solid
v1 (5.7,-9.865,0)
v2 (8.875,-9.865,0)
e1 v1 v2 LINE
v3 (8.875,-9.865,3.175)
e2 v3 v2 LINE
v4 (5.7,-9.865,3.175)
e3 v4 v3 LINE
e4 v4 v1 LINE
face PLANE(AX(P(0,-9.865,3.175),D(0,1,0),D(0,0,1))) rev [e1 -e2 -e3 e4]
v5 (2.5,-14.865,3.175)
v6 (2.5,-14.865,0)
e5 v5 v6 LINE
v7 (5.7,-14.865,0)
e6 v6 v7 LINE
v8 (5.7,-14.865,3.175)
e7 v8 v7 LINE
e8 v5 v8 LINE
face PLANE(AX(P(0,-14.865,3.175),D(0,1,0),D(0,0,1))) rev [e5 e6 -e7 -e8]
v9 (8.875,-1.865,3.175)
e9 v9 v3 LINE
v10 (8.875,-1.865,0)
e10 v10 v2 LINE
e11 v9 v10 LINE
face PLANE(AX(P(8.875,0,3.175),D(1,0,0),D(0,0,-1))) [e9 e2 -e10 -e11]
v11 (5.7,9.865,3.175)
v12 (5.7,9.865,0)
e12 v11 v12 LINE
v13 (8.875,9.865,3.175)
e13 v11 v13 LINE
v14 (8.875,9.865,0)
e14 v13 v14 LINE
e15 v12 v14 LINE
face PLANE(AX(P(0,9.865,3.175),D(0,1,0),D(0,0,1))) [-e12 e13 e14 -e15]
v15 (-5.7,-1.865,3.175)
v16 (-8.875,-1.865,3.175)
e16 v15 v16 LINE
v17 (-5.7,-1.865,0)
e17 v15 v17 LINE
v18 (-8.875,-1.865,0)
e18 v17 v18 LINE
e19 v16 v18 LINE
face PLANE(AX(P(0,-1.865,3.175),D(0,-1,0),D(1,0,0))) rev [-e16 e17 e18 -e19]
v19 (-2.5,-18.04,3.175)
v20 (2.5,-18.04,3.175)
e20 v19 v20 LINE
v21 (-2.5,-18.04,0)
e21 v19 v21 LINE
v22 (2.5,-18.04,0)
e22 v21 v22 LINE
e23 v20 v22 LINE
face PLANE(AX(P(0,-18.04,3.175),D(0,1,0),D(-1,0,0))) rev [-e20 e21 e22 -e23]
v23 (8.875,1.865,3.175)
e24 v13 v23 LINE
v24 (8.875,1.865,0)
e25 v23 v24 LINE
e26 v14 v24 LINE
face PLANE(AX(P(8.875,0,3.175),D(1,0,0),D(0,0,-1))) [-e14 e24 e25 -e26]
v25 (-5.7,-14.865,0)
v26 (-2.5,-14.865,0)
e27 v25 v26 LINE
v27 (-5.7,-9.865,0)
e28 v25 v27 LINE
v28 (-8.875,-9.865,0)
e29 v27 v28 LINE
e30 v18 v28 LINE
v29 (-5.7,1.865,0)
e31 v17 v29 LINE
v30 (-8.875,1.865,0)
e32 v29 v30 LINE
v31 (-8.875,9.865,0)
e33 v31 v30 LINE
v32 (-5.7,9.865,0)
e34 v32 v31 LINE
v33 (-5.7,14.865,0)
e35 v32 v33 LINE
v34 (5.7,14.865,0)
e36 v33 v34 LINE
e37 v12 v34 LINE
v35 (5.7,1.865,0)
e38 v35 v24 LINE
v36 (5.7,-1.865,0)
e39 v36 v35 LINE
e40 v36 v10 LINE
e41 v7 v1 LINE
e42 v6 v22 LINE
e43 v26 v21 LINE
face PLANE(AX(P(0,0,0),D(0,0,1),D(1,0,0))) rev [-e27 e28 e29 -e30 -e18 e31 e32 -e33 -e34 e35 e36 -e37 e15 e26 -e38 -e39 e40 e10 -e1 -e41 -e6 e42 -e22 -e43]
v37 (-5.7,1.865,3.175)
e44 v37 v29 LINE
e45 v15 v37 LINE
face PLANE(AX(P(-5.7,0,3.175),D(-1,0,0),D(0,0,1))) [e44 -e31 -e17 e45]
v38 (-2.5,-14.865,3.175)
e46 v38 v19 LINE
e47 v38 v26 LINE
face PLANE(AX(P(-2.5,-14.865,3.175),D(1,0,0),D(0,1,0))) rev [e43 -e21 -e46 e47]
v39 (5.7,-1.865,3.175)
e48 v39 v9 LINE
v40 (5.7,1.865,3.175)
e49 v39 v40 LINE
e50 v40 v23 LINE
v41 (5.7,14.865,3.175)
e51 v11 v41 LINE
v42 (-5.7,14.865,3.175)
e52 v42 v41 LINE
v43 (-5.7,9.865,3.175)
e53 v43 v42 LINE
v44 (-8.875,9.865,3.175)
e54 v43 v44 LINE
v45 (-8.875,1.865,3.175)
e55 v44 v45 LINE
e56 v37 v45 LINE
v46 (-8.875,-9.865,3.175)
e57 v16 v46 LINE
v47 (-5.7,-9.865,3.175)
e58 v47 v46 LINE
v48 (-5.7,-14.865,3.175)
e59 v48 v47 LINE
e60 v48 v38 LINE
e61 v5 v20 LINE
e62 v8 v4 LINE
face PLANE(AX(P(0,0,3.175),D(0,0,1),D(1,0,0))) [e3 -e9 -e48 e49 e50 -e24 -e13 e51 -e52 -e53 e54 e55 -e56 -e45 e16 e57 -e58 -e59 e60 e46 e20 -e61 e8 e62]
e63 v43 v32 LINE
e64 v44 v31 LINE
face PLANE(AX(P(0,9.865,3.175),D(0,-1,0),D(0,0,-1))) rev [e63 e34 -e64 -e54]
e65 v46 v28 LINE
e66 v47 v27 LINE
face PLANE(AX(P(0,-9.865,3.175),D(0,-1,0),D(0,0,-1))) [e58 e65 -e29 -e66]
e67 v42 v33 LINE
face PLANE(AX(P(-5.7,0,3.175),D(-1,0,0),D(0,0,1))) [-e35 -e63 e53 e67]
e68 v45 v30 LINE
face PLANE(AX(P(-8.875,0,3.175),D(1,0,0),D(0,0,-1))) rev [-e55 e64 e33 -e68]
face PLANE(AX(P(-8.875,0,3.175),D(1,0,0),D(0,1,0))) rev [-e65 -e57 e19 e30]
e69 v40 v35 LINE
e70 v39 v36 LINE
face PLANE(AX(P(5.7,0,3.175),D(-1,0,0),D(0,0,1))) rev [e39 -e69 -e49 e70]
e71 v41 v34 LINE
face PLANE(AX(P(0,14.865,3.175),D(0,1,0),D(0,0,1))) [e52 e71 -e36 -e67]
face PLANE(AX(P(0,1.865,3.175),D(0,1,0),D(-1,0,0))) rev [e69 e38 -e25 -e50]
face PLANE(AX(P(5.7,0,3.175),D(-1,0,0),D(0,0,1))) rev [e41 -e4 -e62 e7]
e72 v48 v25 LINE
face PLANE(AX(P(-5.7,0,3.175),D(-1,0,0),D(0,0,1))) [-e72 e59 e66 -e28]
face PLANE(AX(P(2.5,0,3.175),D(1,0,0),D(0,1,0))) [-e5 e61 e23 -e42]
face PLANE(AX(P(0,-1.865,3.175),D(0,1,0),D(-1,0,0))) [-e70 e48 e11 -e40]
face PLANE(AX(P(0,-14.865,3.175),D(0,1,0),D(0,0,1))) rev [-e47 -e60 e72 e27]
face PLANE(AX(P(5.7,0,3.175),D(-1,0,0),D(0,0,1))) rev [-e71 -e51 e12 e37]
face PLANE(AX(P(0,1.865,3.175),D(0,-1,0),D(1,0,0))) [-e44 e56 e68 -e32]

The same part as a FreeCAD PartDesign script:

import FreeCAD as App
import Part
import Sketcher

V = App.Vector
Q = App.Units.Quantity


def add_polygon(sketch, points):
    """Adds a closed chain of lines whose ends are joined by coincident constraints."""
    first, n = sketch.GeometryCount, len(points)
    for a, b in zip(points, points[1:] + points[:1]):
        sketch.addGeometry(Part.LineSegment(App.Vector(*a, 0), App.Vector(*b, 0)), False)
    for i in range(n):
        sketch.addConstraint(Sketcher.Constraint("Coincident", first + i, 2, first + (i + 1) % n, 1))

doc = App.newDocument("Part")
body = doc.addObject("PartDesign::Body", "Body")

sketch1 = body.newObject("Sketcher::SketchObject", "Sketch")
sketch1.AttachmentSupport = (doc.getObject("XY_Plane"), [""])
sketch1.MapMode = "FlatFace"
add_polygon(sketch1, [(-5.7, -14.9), (-2.5, -14.9), (-2.5, -18), (2.5, -18), (2.5, -14.9), (5.7, -14.9), (5.7, -9.9), (8.9, -9.9), (8.9, -1.9), (5.7, -1.9), (5.7, 1.9), (8.9, 1.9), (8.9, 9.9), (5.7, 9.9), (5.7, 14.9), (-5.7, 14.9), (-5.7, 9.9), (-8.9, 9.9), (-8.9, 1.9), (-5.7, 1.9), (-5.7, -1.9), (-8.9, -1.9), (-8.9, -9.9), (-5.7, -9.9)])
sketch1.addConstraint(Sketcher.Constraint("Horizontal", 0))
sketch1.addConstraint(Sketcher.Constraint("Vertical", 1))
sketch1.addConstraint(Sketcher.Constraint("Horizontal", 2))
sketch1.addConstraint(Sketcher.Constraint("Vertical", 3))
sketch1.addConstraint(Sketcher.Constraint("Horizontal", 4))
sketch1.addConstraint(Sketcher.Constraint("Vertical", 5))
sketch1.addConstraint(Sketcher.Constraint("Horizontal", 6))
sketch1.addConstraint(Sketcher.Constraint("Vertical", 7))
sketch1.addConstraint(Sketcher.Constraint("Horizontal", 8))
sketch1.addConstraint(Sketcher.Constraint("Vertical", 9))
sketch1.addConstraint(Sketcher.Constraint("Horizontal", 10))
sketch1.addConstraint(Sketcher.Constraint("Vertical", 11))
sketch1.addConstraint(Sketcher.Constraint("Horizontal", 12))
sketch1.addConstraint(Sketcher.Constraint("Vertical", 13))
sketch1.addConstraint(Sketcher.Constraint("Horizontal", 14))
sketch1.addConstraint(Sketcher.Constraint("Vertical", 15))
sketch1.addConstraint(Sketcher.Constraint("Horizontal", 16))
sketch1.addConstraint(Sketcher.Constraint("Vertical", 17))
sketch1.addConstraint(Sketcher.Constraint("Horizontal", 18))
sketch1.addConstraint(Sketcher.Constraint("Vertical", 19))
sketch1.addConstraint(Sketcher.Constraint("Horizontal", 20))
sketch1.addConstraint(Sketcher.Constraint("Vertical", 21))
sketch1.addConstraint(Sketcher.Constraint("Horizontal", 22))
sketch1.addConstraint(Sketcher.Constraint("Vertical", 23))
sketch1.addConstraint(Sketcher.Constraint("Symmetric", 4, 2, 14, 2, -1, 1))
sketch1.addConstraint(Sketcher.Constraint("Symmetric", 6, 2, 16, 2, -1, 1))
sketch1.addConstraint(Sketcher.Constraint("Symmetric", 8, 2, 18, 2, -1, 1))
sketch1.addConstraint(Sketcher.Constraint("Symmetric", 10, 2, 20, 2, -1, 1))
sketch1.addConstraint(Sketcher.Constraint("Symmetric", 12, 2, 22, 2, -1, 1))
sketch1.addConstraint(Sketcher.Constraint("Symmetric", 0, 2, 3, 2, -2))
sketch1.addConstraint(Sketcher.Constraint("Symmetric", 12, 2, 15, 2, -2))
sketch1.addConstraint(Sketcher.Constraint("Symmetric", 10, 2, 17, 2, -2))
sketch1.addConstraint(Sketcher.Constraint("Vertical", 5, 2, 8, 2))
sketch1.addConstraint(Sketcher.Constraint("Equal", 22, 1))
sketch1.addConstraint(Sketcher.Constraint("Equal", 2, 5))
sketch1.addConstraint(Sketcher.Constraint("DistanceX", 2, 1, 2, 2, Q("5 mm")))
sketch1.addConstraint(Sketcher.Constraint("DistanceY", 7, 1, 7, 2, Q("8 mm")))
sketch1.addConstraint(Sketcher.Constraint("DistanceX", 0, 1, 0, 2, Q("3.2 mm")))
sketch1.addConstraint(Sketcher.Constraint("DistanceY", 9, 1, 9, 2, Q("3.73 mm")))
sketch1.addConstraint(Sketcher.Constraint("DistanceX", 6, 1, 6, 2, Q("3.175 mm")))
pad1 = body.newObject("PartDesign::Pad", "Pad")
pad1.Profile = sketch1
pad1.Length = 3.175

doc.recompute()
